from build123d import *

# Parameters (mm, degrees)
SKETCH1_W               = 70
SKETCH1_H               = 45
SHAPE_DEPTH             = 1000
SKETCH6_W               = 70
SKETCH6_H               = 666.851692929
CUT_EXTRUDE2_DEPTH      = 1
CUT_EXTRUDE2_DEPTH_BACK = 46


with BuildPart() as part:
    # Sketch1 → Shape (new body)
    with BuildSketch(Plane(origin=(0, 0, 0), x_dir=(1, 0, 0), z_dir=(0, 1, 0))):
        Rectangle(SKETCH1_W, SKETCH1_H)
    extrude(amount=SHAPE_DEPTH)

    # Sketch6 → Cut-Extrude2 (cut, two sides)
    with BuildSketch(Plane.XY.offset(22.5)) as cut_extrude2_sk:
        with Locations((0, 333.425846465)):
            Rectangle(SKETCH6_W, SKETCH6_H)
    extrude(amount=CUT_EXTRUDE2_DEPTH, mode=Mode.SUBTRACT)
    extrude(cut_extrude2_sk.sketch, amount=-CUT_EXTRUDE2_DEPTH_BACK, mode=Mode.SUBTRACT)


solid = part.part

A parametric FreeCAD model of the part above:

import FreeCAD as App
import Part
import Sketcher
Q = App.Units.Quantity


def add_polygon(sketch, points):
    """Adds a closed chain of lines whose ends are joined by coincident constraints."""
    first, n = sketch.GeometryCount, len(points)
    for a, b in zip(points, points[1:] + points[:1]):
        sketch.addGeometry(Part.LineSegment(App.Vector(*a, 0), App.Vector(*b, 0)), False)
    for i in range(n):
        sketch.addConstraint(Sketcher.Constraint("Coincident", first + i, 2, first + (i + 1) % n, 1))

doc = App.newDocument("Part")
body = doc.addObject("PartDesign::Body", "Body")

sketch1 = body.newObject("Sketcher::SketchObject", "Sketch")
sketch1.AttachmentSupport = (doc.getObject("XZ_Plane"), [""])
sketch1.MapMode = "FlatFace"
add_polygon(sketch1, [(-35, -22), (-35, 22), (35, 22), (35, -22)])
sketch1.addConstraint([
    Sketcher.Constraint("Vertical", 0),
    Sketcher.Constraint("Horizontal", 1),
    Sketcher.Constraint("Vertical", 2),
    Sketcher.Constraint("Horizontal", 3),
    Sketcher.Constraint("Symmetric", 0, 2, 2, 2, -1, 1),
    Sketcher.Constraint("DistanceX", 1, 1, 1, 2, Q("70 mm")),
    Sketcher.Constraint("DistanceY", 0, 1, 0, 2, Q("45 mm")),
])
pad1 = body.newObject("PartDesign::Pad", "Pad")
pad1.Profile = sketch1
pad1.Length = 1000
pad1.Reversed = True

sketch2 = body.newObject("Sketcher::SketchObject", "Sketch001")
sketch2.AttachmentSupport = (doc.getObject("XY_Plane"), [""])
sketch2.MapMode = "FlatFace"
sketch2.AttachmentOffset = App.Placement(App.Vector(0, 0, 22.5), App.Rotation())
add_polygon(sketch2, [(-35, 667), (-35, 0), (35, 0), (35, 667)])
sketch2.addConstraint([
    Sketcher.Constraint("Vertical", 0),
    Sketcher.Constraint("Horizontal", 1),
    Sketcher.Constraint("Vertical", 2),
    Sketcher.Constraint("Horizontal", 3),
    Sketcher.Constraint("Symmetric", 0, 2, 1, 2, -1, 1),
    Sketcher.Constraint("DistanceX", 1, 1, 1, 2, Q("70 mm")),
    Sketcher.Constraint("DistanceY", 0, 2, 0, 1, Q("666.851693 mm")),
])
pocket1 = body.newObject("PartDesign::Pocket", "Pocket")
pocket1.Profile = sketch2
pocket1.Type = "ThroughAll"
pocket1.Midplane = True

doc.recompute()
